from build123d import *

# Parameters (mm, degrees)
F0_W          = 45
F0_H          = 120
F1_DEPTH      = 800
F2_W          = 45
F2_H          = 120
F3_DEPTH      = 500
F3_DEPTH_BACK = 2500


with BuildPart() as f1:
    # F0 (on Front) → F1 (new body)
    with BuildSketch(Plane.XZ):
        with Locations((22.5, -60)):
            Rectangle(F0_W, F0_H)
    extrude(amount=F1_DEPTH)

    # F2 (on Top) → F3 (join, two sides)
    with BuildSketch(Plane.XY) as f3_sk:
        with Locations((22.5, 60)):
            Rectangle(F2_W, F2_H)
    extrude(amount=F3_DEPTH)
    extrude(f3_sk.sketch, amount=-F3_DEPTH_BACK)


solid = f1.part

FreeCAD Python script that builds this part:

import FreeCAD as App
import Part
import Sketcher

V = App.Vector
Q = App.Units.Quantity


def add_polygon(sketch, points):
    """Adds a closed chain of lines whose ends are joined by coincident constraints."""
    first, n = sketch.GeometryCount, len(points)
    for a, b in zip(points, points[1:] + points[:1]):
        sketch.addGeometry(Part.LineSegment(App.Vector(*a, 0), App.Vector(*b, 0)), False)
    for i in range(n):
        sketch.addConstraint(Sketcher.Constraint("Coincident", first + i, 2, first + (i + 1) % n, 1))

doc = App.newDocument("Part")
params = doc.addObject("Spreadsheet::Sheet", "Params")
for row, (alias, value) in enumerate([
    ("sketch1_width", "45 mm"),
    ("sketch1_height", "120 mm"),
    ("pad1_length", "800 mm"),
    ("sketch2_width", "45 mm"),
    ("sketch2_height", "120 mm"),
    ("pad2_length", "500 mm"),
    ("pad2_length2", "2500 mm"),
], start=1):
    params.set(f"A{row}", alias)
    params.set(f"B{row}", "=" + value)
    params.setAlias(f"B{row}", alias)

body = doc.addObject("PartDesign::Body", "Body")

# Sketch on XZ plane
sketch1 = body.newObject("Sketcher::SketchObject", "Sketch")
sketch1.AttachmentSupport = (doc.getObject("XZ_Plane"), [""])
sketch1.MapMode = "FlatFace"
add_polygon(sketch1, [(0, 0), (0, -120), (45, -120), (45, 0)])  # lines 0-3
sketch1.addConstraint([
    Sketcher.Constraint("Vertical", 0),
    Sketcher.Constraint("Horizontal", 1),
    Sketcher.Constraint("Vertical", 2),
    Sketcher.Constraint("Horizontal", 3),
    Sketcher.Constraint("Coincident", 3, 2, -1, 1),
    Sketcher.Constraint("DistanceX", 1, 1, 1, 2, Q("45 mm")),
    Sketcher.Constraint("DistanceY", 0, 2, 0, 1, Q("120 mm")),
])
sketch1.setExpression("Constraints[9]", "Params.sketch1_width")
sketch1.setExpression("Constraints[10]", "Params.sketch1_height")
pad1 = body.newObject("PartDesign::Pad", "Pad")
pad1.Profile = sketch1
pad1.setExpression("Length", "Params.pad1_length")

# Sketch on XY plane
sketch2 = body.newObject("Sketcher::SketchObject", "Sketch001")
sketch2.AttachmentSupport = (doc.getObject("XY_Plane"), [""])
sketch2.MapMode = "FlatFace"
add_polygon(sketch2, [(0, 120), (0, 0), (45, 0), (45, 120)])  # lines 0-3
sketch2.addConstraint([
    Sketcher.Constraint("Vertical", 0),
    Sketcher.Constraint("Horizontal", 1),
    Sketcher.Constraint("Vertical", 2),
    Sketcher.Constraint("Horizontal", 3),
    Sketcher.Constraint("Coincident", 0, 2, -1, 1),
    Sketcher.Constraint("DistanceX", 1, 1, 1, 2, Q("45 mm")),
    Sketcher.Constraint("DistanceY", 0, 2, 0, 1, Q("120 mm")),
])
sketch2.setExpression("Constraints[9]", "Params.sketch2_width")
sketch2.setExpression("Constraints[10]", "Params.sketch2_height")
pad2 = body.newObject("PartDesign::Pad", "Pad001")
pad2.Profile = sketch2
pad2.Type = "TwoLengths"
pad2.setExpression("Length", "Params.pad2_length")
pad2.setExpression("Length2", "Params.pad2_length2")

doc.recompute()
